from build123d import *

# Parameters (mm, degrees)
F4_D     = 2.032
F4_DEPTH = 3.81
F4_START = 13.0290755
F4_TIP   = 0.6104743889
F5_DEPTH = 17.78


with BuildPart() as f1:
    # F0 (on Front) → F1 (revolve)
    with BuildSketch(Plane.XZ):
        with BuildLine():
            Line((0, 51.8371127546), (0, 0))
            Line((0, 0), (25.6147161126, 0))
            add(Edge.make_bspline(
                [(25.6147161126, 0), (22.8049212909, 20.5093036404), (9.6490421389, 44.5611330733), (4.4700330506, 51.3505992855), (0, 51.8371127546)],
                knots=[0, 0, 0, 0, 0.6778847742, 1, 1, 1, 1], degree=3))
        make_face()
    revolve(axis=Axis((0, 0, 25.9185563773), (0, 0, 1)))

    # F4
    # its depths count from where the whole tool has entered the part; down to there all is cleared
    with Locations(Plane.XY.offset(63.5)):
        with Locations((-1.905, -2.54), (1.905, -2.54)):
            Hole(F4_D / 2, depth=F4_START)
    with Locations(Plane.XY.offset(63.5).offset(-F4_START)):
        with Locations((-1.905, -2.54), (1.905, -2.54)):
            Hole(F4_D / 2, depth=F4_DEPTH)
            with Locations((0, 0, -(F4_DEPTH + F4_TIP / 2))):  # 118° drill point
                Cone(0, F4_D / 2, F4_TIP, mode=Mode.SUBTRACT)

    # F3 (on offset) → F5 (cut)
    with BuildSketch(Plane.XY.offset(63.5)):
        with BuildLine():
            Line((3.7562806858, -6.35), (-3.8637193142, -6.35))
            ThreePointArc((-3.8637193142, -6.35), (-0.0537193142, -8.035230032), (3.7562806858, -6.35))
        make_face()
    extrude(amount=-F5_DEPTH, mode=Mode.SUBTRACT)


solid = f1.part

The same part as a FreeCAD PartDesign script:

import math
import FreeCAD as App
import Part
import Sketcher
Q = App.Units.Quantity

doc = App.newDocument("Part")
params = doc.addObject("Spreadsheet::Sheet", "Params")
for row, (alias, value) in enumerate([
    ("revolution_angle", "360 deg"),
    ("sketch2_diameter", "0.08 in"),
    ("hole_diameter", "0.08 in"),
    ("hole_depth", "13.029075 mm"),
    ("sketch3_diameter", "0.08 in"),
    ("hole2_diameter", "0.08 in"),
    ("hole2_depth", "0.15 in"),
    ("sketch4_width", "0.3 in"),
    ("pocket1_length", "0.7 in"),
], start=1):
    params.set(f"A{row}", alias)
    params.set(f"B{row}", "=" + value)
    params.setAlias(f"B{row}", alias)

body = doc.addObject("PartDesign::Body", "Body")

# Sketch on XZ plane
sketch1 = doc.addObject("Sketcher::SketchObject", "Sketch")
body.addObject(sketch1)
sketch1.AttachmentSupport = (doc.XZ_Plane, [""])
sketch1.MapMode = "FlatFace"
sketch1.addGeometry([
    Part.LineSegment(App.Vector(0, 51.837113, 0), App.Vector(0, 0, 0)),
    Part.LineSegment(App.Vector(0, 0, 0), App.Vector(25.614716, 0, 0)),
    Part.BSplineCurve([App.Vector(25.614716, 0, 0), App.Vector(22.804921, 20.509304, 0), App.Vector(9.649042, 44.561133, 0), App.Vector(4.470033, 51.350599, 0), App.Vector(0, 51.837113, 0)], [4, 1, 4], [0, 0.677884774, 1], False, 3, [1, 1, 1, 1, 1], False),
], False)
sketch1.addConstraint([
    Sketcher.Constraint("Block", 2),
    Sketcher.Constraint("Coincident", 0, 2, 1, 1),
    Sketcher.Constraint("Coincident", 1, 2, 2, 1),
    Sketcher.Constraint("Coincident", 2, 2, 0, 1),
    Sketcher.Constraint("Vertical", 0),
    Sketcher.Constraint("Horizontal", 1),
])
revolution = doc.addObject("PartDesign::Revolution", "Revolution")
body.addObject(revolution)
revolution.Profile = sketch1
revolution.ReferenceAxis = (sketch1, ["V_Axis"])
revolution.setExpression("Angle", "Params.revolution_angle")

# Sketch on XY plane
sketch2 = doc.addObject("Sketcher::SketchObject", "Sketch001")
body.addObject(sketch2)
sketch2.AttachmentSupport = (doc.XY_Plane, [""])
sketch2.MapMode = "FlatFace"
sketch2.AttachmentOffset = App.Placement(App.Vector(0, 0, 2.5 * 25.4), App.Rotation())
sketch2.addGeometry([
    Part.Circle(App.Vector(-1.905, -2.54, 0), App.Vector(0, 0, 1), 1.016),
    Part.Circle(App.Vector(1.905, -2.54, 0), App.Vector(0, 0, 1), 1.016),
], False)
sketch2.addConstraint([
    Sketcher.Constraint("Equal", 0, 1),
    Sketcher.Constraint("Symmetric", 0, 3, 1, 3, -2),
    Sketcher.Constraint("Diameter", 0, Q("0.08 in")),
    Sketcher.Constraint("DistanceY", 0, 3, -1, 1, Q("0.1 in")),
    Sketcher.Constraint("DistanceX", 0, 3, 1, 3, Q("0.15 in")),
])
sketch2.setExpression("Constraints[2]", "Params.sketch2_diameter")
doc.recompute()
hole = doc.addObject("PartDesign::Hole", "Hole")
body.addObject(hole)
hole.Profile = sketch2
hole.ThreadType = "None"
hole.setExpression("Diameter", "Params.hole_diameter")
hole.DepthType = "Dimension"
hole.setExpression("Depth", "Params.hole_depth")
hole.DrillPoint = "Flat"

# Sketch on XY plane
sketch3 = doc.addObject("Sketcher::SketchObject", "Sketch002")
body.addObject(sketch3)
sketch3.AttachmentSupport = (doc.XY_Plane, [""])
sketch3.MapMode = "FlatFace"
sketch3.AttachmentOffset = App.Placement(App.Vector(0, 0, 50.470925), App.Rotation())
sketch3.addGeometry([
    Part.Circle(App.Vector(-1.905, -2.54, 0), App.Vector(0, 0, 1), 1.016),
    Part.Circle(App.Vector(1.905, -2.54, 0), App.Vector(0, 0, 1), 1.016),
], False)
sketch3.addConstraint([
    Sketcher.Constraint("Equal", 0, 1),
    Sketcher.Constraint("Symmetric", 0, 3, 1, 3, -2),
    Sketcher.Constraint("Diameter", 0, Q("0.08 in")),
    Sketcher.Constraint("DistanceY", 0, 3, -1, 1, Q("0.1 in")),
    Sketcher.Constraint("DistanceX", 0, 3, 1, 3, Q("0.15 in")),
])
sketch3.setExpression("Constraints[2]", "Params.sketch3_diameter")
doc.recompute()
hole2 = doc.addObject("PartDesign::Hole", "Hole001")
body.addObject(hole2)
hole2.Profile = sketch3
hole2.ThreadType = "None"
hole2.setExpression("Diameter", "Params.hole2_diameter")
hole2.DepthType = "Dimension"
hole2.setExpression("Depth", "Params.hole2_depth")
hole2.DrillPoint = "Angled"
hole2.DrillPointAngle = 118

# Sketch on XY plane
sketch4 = doc.addObject("Sketcher::SketchObject", "Sketch003")
body.addObject(sketch4)
sketch4.AttachmentSupport = (doc.XY_Plane, [""])
sketch4.MapMode = "FlatFace"
sketch4.AttachmentOffset = App.Placement(App.Vector(0, 0, 2.5 * 25.4), App.Rotation())
sketch4.addGeometry([
    Part.LineSegment(App.Vector(3.756281, -6.35, 0), App.Vector(-3.863719, -6.35, 0)),
    Part.ArcOfCircle(Part.Circle(App.Vector(-0.053719, -2.885755, 0), App.Vector(0, 0, 1), 5.149475), math.radians(-137.721299), math.radians(-42.278701)),
], False)
sketch4.addConstraint([
    Sketcher.Constraint("Coincident", 0, 1, 1, 2),
    Sketcher.Constraint("Coincident", 1, 1, 0, 2),
    Sketcher.Constraint("Horizontal", 0),
    Sketcher.Constraint("DistanceX", 0, 2, 0, 1, Q("0.3 in")),
    Sketcher.Constraint("DistanceY", 0, 1, -1, 1, Q("0.25 in")),
    Sketcher.Constraint("Radius", 1, Q("5.149475 mm")),
    Sketcher.Constraint("DistanceX", 1, 3, -1, 1, Q("0.053719 mm")),
])
sketch4.setExpression("Constraints[3]", "Params.sketch4_width")
pocket1 = doc.addObject("PartDesign::Pocket", "Pocket")
body.addObject(pocket1)
pocket1.Profile = sketch4
pocket1.setExpression("Length", "Params.pocket1_length")

doc.recompute()
